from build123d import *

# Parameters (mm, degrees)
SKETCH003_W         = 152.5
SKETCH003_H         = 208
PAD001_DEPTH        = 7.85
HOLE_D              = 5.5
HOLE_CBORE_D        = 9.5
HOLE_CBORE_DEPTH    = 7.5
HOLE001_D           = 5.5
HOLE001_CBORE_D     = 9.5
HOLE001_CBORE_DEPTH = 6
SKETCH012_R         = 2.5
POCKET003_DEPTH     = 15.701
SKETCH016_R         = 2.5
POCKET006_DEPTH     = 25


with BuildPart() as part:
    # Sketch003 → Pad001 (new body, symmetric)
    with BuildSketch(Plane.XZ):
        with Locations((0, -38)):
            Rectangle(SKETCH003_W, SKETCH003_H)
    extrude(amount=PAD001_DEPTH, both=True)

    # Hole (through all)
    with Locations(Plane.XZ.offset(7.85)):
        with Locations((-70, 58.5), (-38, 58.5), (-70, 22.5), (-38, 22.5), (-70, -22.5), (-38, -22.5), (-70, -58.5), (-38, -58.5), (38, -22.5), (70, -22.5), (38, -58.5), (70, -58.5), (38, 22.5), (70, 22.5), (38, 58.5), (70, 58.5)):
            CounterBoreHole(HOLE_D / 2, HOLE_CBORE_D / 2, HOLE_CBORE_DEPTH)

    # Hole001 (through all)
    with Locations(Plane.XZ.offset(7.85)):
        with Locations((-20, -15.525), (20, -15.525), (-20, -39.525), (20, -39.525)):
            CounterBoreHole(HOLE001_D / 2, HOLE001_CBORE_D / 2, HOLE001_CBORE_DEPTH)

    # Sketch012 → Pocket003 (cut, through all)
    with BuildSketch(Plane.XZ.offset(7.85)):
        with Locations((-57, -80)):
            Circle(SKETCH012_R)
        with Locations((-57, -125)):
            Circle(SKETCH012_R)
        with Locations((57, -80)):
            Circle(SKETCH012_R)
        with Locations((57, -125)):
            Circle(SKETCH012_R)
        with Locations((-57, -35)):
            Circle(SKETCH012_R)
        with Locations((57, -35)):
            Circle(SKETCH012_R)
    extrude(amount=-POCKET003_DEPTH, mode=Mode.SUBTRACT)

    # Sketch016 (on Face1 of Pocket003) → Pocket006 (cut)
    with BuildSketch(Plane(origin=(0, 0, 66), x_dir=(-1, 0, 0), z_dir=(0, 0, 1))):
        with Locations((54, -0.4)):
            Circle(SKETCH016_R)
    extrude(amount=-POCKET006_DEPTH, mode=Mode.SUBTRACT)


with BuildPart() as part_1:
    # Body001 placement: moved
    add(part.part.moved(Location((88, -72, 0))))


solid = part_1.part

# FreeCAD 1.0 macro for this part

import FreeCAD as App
import Part
import Sketcher

V = App.Vector


def add_polygon(sketch, points):
    """Adds a closed chain of lines whose ends are joined by coincident constraints."""
    first, n = sketch.GeometryCount, len(points)
    for a, b in zip(points, points[1:] + points[:1]):
        sketch.addGeometry(Part.LineSegment(App.Vector(*a, 0), App.Vector(*b, 0)), False)
    for i in range(n):
        sketch.addConstraint(Sketcher.Constraint("Coincident", first + i, 2, first + (i + 1) % n, 1))

doc = App.newDocument("Part")
body = doc.addObject("PartDesign::Body", "Body")

sketch1 = body.newObject("Sketcher::SketchObject", "Sketch")
sketch1.AttachmentSupport = (doc.getObject("XZ_Plane"), [""])
sketch1.MapMode = "FlatFace"
add_polygon(sketch1, [(-76, 66), (-76, -142), (76, -142), (76, 66)])
sketch1.addConstraint([
    Sketcher.Constraint("Vertical", 0),
    Sketcher.Constraint("Horizontal", 1),
    Sketcher.Constraint("Vertical", 2),
    Sketcher.Constraint("Horizontal", 3),
    Sketcher.Constraint("DistanceY", 0, 2, 0, 1, 208.0),
    Sketcher.Constraint("DistanceX", 1, 1, 1, 2, 152.5),
    Sketcher.Constraint("DistanceY", 0, 2, -1, 1, 142.0),
    Sketcher.Constraint("DistanceX", 0, 2, -1, 1, 76.25),
])
pad1 = body.newObject("PartDesign::Pad", "Pad")
pad1.Profile = sketch1
pad1.Length = 15.7
pad1.Midplane = True

sketch2 = body.newObject("Sketcher::SketchObject", "Sketch001")
sketch2.AttachmentSupport = (doc.getObject("XZ_Plane"), [""])
sketch2.MapMode = "FlatFace"
sketch2.AttachmentOffset = App.Placement(V(0, 0, 7.85), App.Rotation())
sketch2.addGeometry([
    Part.Circle(V(-70, 58.5, 0), V(0, 0, 1), 2.8),
    Part.Circle(V(-38, 58.5, 0), V(0, 0, 1), 2.8),
    Part.Circle(V(-70, 22.5, 0), V(0, 0, 1), 2.8),
    Part.Circle(V(-38, 22.5, 0), V(0, 0, 1), 2.8),
    Part.Circle(V(-70, -22.5, 0), V(0, 0, 1), 2.8),
    Part.Circle(V(-38, -22.5, 0), V(0, 0, 1), 2.8),
    Part.Circle(V(-70, -58.5, 0), V(0, 0, 1), 2.8),
    Part.Circle(V(-38, -58.5, 0), V(0, 0, 1), 2.8),
    Part.Circle(V(38, -22.5, 0), V(0, 0, 1), 2.8),
    Part.Circle(V(70, -22.5, 0), V(0, 0, 1), 2.8),
    Part.Circle(V(38, -58.5, 0), V(0, 0, 1), 2.8),
    Part.Circle(V(70, -58.5, 0), V(0, 0, 1), 2.8),
    Part.Circle(V(38, 22.5, 0), V(0, 0, 1), 2.8),
    Part.Circle(V(70, 22.5, 0), V(0, 0, 1), 2.8),
    Part.Circle(V(38, 58.5, 0), V(0, 0, 1), 2.8),
    Part.Circle(V(70, 58.5, 0), V(0, 0, 1), 2.8),
], False)
sketch2.addConstraint([
    Sketcher.Constraint("Equal", 0, 1),
    Sketcher.Constraint("Equal", 1, 2),
    Sketcher.Constraint("Equal", 2, 3),
    Sketcher.Constraint("Equal", 3, 4),
    Sketcher.Constraint("Equal", 4, 5),
    Sketcher.Constraint("Equal", 5, 6),
    Sketcher.Constraint("Equal", 6, 7),
    Sketcher.Constraint("Equal", 7, 8),
    Sketcher.Constraint("Equal", 8, 9),
    Sketcher.Constraint("Equal", 9, 10),
    Sketcher.Constraint("Equal", 10, 11),
    Sketcher.Constraint("Equal", 11, 12),
    Sketcher.Constraint("Equal", 12, 13),
    Sketcher.Constraint("Equal", 13, 14),
    Sketcher.Constraint("Equal", 14, 15),
    Sketcher.Constraint("Symmetric", 3, 3, 8, 3, -1, 1),
    Sketcher.Constraint("Symmetric", 2, 3, 9, 3, -1, 1),
    Sketcher.Constraint("Symmetric", 1, 3, 10, 3, -1, 1),
    Sketcher.Constraint("Symmetric", 0, 3, 11, 3, -1, 1),
    Sketcher.Constraint("Symmetric", 5, 3, 12, 3, -1, 1),
    Sketcher.Constraint("Symmetric", 4, 3, 13, 3, -1, 1),
    Sketcher.Constraint("Symmetric", 7, 3, 14, 3, -1, 1),
    Sketcher.Constraint("Symmetric", 6, 3, 15, 3, -1, 1),
    Sketcher.Constraint("Symmetric", 5, 3, 8, 3, -2),
    Sketcher.Constraint("Symmetric", 4, 3, 9, 3, -2),
    Sketcher.Constraint("Symmetric", 7, 3, 10, 3, -2),
    Sketcher.Constraint("Symmetric", 6, 3, 11, 3, -2),
    Sketcher.Constraint("Horizontal", 0, 3, 1, 3),
    Sketcher.Constraint("Horizontal", 2, 3, 3, 3),
    Sketcher.Constraint("Vertical", 0, 3, 2, 3),
    Sketcher.Constraint("Vertical", 1, 3, 3, 3),
    Sketcher.Constraint("Diameter", 0, 5.5),
    Sketcher.Constraint("DistanceX", 0, 3, -1, 1, 70.0),
    Sketcher.Constraint("DistanceX", 1, 3, -1, 1, 38.0),
    Sketcher.Constraint("DistanceY", 2, 3, 0, 3, 36.0),
    Sketcher.Constraint("DistanceY", 4, 3, 2, 3, 45.0),
])
doc.recompute()
hole = body.newObject("PartDesign::Hole", "Hole")
hole.Profile = sketch2
hole.ThreadType = "None"
hole.Diameter = 5.5
hole.DepthType = "ThroughAll"
hole.HoleCutType = "Counterbore"
hole.HoleCutDiameter = 9.5
hole.HoleCutDepth = 7.5

sketch3 = body.newObject("Sketcher::SketchObject", "Sketch002")
sketch3.AttachmentSupport = (doc.getObject("XZ_Plane"), [""])
sketch3.MapMode = "FlatFace"
sketch3.AttachmentOffset = App.Placement(V(0, 0, 7.85), App.Rotation())
sketch3.addGeometry([
    Part.Circle(V(-20, -15.5, 0), V(0, 0, 1), 2.8),
    Part.Circle(V(20, -15.5, 0), V(0, 0, 1), 2.8),
    Part.Circle(V(-20, -39.5, 0), V(0, 0, 1), 2.8),
    Part.Circle(V(20, -39.5, 0), V(0, 0, 1), 2.8),
], False)
sketch3.addConstraint([
    Sketcher.Constraint("Equal", 0, 1),
    Sketcher.Constraint("Equal", 1, 2),
    Sketcher.Constraint("Equal", 2, 3),
    Sketcher.Constraint("Symmetric", 0, 3, 1, 3, -2),
    Sketcher.Constraint("Symmetric", 2, 3, 3, 3, -2),
    Sketcher.Constraint("Vertical", 0, 3, 2, 3),
    Sketcher.Constraint("Diameter", 0, 5.5),
    Sketcher.Constraint("DistanceX", 0, 3, -1, 1, 20.0),
    Sketcher.Constraint("DistanceY", 2, 3, 0, 3, 24.0),
    Sketcher.Constraint("DistanceY", 0, 3, -1, 1, 15.525),
])
doc.recompute()
hole2 = body.newObject("PartDesign::Hole", "Hole001")
hole2.Profile = sketch3
hole2.ThreadType = "None"
hole2.Diameter = 5.5
hole2.DepthType = "ThroughAll"
hole2.HoleCutType = "Counterbore"
hole2.HoleCutDiameter = 9.5
hole2.HoleCutDepth = 6

sketch4 = body.newObject("Sketcher::SketchObject", "Sketch003")
sketch4.AttachmentSupport = (doc.getObject("XZ_Plane"), [""])
sketch4.MapMode = "FlatFace"
sketch4.AttachmentOffset = App.Placement(V(0, 0, 7.85), App.Rotation())
sketch4.addGeometry([
    Part.Circle(V(-57, -80, 0), V(0, 0, 1), 2.5),
    Part.Circle(V(-57, -125, 0), V(0, 0, 1), 2.5),
    Part.Circle(V(57, -80, 0), V(0, 0, 1), 2.5),
    Part.Circle(V(57, -125, 0), V(0, 0, 1), 2.5),
    Part.Circle(V(-57, -35, 0), V(0, 0, 1), 2.5),
    Part.Circle(V(57, -35, 0), V(0, 0, 1), 2.5),
], False)
sketch4.addConstraint([
    Sketcher.Constraint("Equal", 0, 1),
    Sketcher.Constraint("Equal", 1, 2),
    Sketcher.Constraint("Equal", 2, 3),
    Sketcher.Constraint("Equal", 3, 4),
    Sketcher.Constraint("Equal", 4, 5),
    Sketcher.Constraint("Symmetric", 0, 3, 2, 3, -2),
    Sketcher.Constraint("Symmetric", 1, 3, 3, 3, -2),
    Sketcher.Constraint("Symmetric", 4, 3, 5, 3, -2),
    Sketcher.Constraint("Vertical", 0, 3, 1, 3),
    Sketcher.Constraint("Vertical", 1, 3, 4, 3),
    Sketcher.Constraint("Diameter", 0, 5.0),
    Sketcher.Constraint("DistanceX", 0, 3, -1, 1, 57.0),
    Sketcher.Constraint("DistanceY", 0, 3, -1, 1, 80.0),
    Sketcher.Constraint("DistanceY", 1, 3, -1, 1, 125.0),
    Sketcher.Constraint("DistanceY", 4, 3, -1, 1, 35.0),
])
pocket1 = body.newObject("PartDesign::Pocket", "Pocket")
pocket1.Profile = sketch4
pocket1.Type = "ThroughAll"

sketch5 = body.newObject("Sketcher::SketchObject", "Sketch004")
sketch5.AttachmentSupport = (doc.getObject("XY_Plane"), [""])
sketch5.MapMode = "FlatFace"
sketch5.AttachmentOffset = App.Placement(V(0, 0, 66), App.Rotation())
sketch5.addGeometry(Part.Circle(V(-54, 0.4, 0), V(0, 0, 1), 2.5), False)
sketch5.addConstraint([
    Sketcher.Constraint("Diameter", 0, 5.0),
    Sketcher.Constraint("DistanceX", 0, 3, -1, 1, 54.0),
    Sketcher.Constraint("DistanceY", -1, 1, 0, 3, 0.4),
])
pocket2 = body.newObject("PartDesign::Pocket", "Pocket001")
pocket2.Profile = sketch5
pocket2.Length = 25
body2 = doc.addObject("PartDesign::Body", "Body001")
doc.recompute()

body.Placement = App.Placement(V(88, -72, 0), App.Rotation(V(0, 0, 1), 0))
boolean = body2.newObject("PartDesign::Boolean", "Boolean")
boolean.Type = "Fuse"
boolean.addObjects([body])

doc.recompute()
